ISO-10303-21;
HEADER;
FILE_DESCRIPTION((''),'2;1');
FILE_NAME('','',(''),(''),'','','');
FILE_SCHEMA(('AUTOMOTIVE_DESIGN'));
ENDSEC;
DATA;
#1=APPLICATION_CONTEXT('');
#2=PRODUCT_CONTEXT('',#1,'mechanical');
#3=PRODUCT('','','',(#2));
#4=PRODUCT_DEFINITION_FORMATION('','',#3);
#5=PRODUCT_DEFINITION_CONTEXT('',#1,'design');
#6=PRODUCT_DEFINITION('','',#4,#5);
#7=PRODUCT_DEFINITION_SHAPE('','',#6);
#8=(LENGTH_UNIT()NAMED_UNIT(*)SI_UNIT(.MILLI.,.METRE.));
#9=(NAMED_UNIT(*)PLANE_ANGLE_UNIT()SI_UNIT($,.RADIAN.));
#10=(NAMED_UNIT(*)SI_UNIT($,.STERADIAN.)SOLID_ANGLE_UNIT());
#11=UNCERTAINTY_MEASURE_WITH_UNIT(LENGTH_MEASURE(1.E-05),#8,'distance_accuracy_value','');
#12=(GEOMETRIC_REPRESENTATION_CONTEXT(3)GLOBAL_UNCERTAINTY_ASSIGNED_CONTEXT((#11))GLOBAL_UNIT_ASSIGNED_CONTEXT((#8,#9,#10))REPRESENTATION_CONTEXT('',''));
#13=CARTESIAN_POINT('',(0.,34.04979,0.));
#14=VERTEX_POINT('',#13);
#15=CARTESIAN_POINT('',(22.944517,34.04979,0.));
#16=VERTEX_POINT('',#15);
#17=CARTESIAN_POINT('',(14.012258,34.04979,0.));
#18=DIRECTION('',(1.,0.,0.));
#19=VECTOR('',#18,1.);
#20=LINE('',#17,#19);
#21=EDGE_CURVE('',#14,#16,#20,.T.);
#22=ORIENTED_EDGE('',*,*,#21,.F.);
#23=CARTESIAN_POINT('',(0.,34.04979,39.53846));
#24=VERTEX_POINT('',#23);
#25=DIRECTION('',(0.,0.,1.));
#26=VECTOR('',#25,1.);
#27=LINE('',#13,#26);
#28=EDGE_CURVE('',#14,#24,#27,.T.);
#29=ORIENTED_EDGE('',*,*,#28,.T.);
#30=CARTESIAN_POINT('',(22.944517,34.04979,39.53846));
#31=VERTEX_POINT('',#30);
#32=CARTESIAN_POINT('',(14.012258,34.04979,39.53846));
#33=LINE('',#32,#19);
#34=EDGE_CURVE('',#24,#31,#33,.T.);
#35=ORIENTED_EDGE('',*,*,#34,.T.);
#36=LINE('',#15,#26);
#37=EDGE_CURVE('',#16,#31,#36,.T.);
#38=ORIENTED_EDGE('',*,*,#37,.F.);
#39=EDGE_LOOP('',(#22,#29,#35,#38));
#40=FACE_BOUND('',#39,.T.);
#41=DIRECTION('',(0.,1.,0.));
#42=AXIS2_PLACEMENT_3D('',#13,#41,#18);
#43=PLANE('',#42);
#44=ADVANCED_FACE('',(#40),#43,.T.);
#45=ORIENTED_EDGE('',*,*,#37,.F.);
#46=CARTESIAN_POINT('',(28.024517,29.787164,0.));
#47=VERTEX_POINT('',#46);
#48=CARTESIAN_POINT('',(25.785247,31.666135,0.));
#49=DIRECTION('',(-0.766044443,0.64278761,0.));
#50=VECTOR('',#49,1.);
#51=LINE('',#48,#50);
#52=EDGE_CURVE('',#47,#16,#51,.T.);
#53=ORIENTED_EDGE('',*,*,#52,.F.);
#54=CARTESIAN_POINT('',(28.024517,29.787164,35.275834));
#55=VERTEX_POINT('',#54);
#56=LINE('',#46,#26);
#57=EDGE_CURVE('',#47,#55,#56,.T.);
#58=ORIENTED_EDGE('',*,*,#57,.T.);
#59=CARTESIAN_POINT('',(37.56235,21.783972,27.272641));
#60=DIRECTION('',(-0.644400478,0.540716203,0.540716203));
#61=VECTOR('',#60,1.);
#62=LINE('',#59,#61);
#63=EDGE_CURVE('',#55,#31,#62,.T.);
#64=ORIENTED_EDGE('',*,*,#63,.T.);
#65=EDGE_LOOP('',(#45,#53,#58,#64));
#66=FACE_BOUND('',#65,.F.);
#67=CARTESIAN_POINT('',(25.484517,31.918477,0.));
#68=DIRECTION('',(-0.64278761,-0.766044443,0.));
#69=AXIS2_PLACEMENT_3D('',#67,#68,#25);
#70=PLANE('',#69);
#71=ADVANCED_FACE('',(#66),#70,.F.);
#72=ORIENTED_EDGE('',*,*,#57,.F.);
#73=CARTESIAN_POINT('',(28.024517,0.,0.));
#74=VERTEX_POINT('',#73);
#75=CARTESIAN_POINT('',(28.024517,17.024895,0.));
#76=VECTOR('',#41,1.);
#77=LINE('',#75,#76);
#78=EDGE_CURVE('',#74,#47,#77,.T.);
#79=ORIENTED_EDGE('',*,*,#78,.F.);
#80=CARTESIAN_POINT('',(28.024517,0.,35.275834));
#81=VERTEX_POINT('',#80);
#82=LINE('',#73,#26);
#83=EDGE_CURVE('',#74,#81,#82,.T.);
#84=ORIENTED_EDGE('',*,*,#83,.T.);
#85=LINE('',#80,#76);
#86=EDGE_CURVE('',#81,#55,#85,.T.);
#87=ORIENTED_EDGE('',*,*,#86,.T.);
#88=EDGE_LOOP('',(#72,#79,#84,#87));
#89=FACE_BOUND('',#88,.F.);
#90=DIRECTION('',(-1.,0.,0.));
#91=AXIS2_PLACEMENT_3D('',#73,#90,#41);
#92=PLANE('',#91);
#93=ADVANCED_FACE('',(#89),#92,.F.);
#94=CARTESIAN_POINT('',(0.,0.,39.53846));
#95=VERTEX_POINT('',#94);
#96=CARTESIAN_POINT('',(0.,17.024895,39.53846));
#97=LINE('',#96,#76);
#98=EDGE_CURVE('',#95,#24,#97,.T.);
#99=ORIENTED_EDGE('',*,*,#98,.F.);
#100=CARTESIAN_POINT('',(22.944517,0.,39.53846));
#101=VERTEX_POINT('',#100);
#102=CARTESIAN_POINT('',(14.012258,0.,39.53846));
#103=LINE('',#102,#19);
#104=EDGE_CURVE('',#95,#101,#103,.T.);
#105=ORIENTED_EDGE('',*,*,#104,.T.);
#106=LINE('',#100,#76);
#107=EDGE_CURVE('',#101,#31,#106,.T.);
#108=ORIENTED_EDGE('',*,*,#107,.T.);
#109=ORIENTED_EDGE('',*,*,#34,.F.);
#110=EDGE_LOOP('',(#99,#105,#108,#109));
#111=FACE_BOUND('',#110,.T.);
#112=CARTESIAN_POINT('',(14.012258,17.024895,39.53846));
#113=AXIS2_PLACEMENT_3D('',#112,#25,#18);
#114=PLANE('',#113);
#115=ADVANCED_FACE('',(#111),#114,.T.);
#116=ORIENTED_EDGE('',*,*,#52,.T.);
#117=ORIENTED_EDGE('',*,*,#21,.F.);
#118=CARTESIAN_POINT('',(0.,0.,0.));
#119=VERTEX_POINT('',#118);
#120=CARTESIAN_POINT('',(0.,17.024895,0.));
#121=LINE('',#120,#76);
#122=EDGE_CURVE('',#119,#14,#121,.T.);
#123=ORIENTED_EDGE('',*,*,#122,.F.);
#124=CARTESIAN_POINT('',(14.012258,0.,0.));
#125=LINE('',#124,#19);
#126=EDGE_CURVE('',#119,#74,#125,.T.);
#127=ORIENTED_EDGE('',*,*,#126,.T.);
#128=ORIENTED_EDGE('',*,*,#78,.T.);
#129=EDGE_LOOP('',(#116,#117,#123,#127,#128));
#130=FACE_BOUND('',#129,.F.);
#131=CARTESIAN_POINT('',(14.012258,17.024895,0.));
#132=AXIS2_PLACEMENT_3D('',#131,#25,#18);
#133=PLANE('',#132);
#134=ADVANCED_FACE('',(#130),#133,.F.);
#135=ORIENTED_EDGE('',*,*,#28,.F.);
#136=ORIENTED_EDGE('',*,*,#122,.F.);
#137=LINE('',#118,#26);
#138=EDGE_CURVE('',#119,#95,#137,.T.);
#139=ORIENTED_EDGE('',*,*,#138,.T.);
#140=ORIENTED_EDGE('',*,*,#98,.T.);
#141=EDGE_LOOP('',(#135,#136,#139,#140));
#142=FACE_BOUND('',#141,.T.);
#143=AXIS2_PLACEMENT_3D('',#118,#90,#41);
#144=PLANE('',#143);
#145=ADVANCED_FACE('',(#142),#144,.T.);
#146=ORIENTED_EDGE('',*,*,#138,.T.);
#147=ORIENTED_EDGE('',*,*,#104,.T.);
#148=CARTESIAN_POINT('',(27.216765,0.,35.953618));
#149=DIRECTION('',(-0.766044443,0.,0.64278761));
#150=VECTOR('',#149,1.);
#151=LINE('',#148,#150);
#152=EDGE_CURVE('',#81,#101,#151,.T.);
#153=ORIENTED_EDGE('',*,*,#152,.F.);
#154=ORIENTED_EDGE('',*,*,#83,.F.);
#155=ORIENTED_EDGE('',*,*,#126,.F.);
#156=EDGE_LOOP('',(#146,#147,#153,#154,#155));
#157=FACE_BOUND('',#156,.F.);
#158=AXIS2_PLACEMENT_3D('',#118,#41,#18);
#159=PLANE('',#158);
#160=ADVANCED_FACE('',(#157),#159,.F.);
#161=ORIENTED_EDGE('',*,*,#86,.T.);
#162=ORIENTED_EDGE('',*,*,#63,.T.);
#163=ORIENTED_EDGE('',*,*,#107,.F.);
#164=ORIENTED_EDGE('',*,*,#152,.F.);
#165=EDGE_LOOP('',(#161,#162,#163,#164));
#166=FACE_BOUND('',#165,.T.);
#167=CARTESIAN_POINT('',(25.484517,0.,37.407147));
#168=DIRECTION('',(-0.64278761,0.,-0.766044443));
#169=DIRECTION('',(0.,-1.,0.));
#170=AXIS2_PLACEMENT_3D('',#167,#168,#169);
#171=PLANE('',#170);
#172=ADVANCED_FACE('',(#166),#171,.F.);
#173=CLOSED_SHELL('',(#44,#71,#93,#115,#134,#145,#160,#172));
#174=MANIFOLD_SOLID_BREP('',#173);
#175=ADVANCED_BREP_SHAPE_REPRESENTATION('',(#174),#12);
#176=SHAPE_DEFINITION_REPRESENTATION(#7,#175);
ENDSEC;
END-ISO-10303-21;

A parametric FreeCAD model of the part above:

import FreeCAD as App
import Part
import Sketcher

V = App.Vector


def edges_at(feature, points):
    """Names of the edges that pass closest to the given points."""
    edges = feature.Shape.Edges
    near = lambda p: min(range(len(edges)), key=lambda i: edges[i].distToShape(Part.Vertex(*p))[0])
    return sorted({f"Edge{near(p) + 1}" for p in points})

doc = App.newDocument("Part")
body = doc.addObject("PartDesign::Body", "Body")

# Sketch on XY plane
sketch1 = body.newObject("Sketcher::SketchObject", "Sketch")
sketch1.AttachmentSupport = (doc.getObject("XY_Plane"), [""])
sketch1.MapMode = "FlatFace"
sketch1.addGeometry([
    Part.LineSegment(V(0, 34, 0), V(0, 0, 0)),
    Part.LineSegment(V(0, 0, 0), V(28, 0, 0)),
    Part.LineSegment(V(28, 0, 0), V(28, 34, 0)),
    Part.LineSegment(V(28, 34, 0), V(0, 34, 0)),
], False)
sketch1.addConstraint([
    Sketcher.Constraint("Coincident", 0, 2, 1, 1),
    Sketcher.Constraint("Coincident", 1, 2, 2, 1),
    Sketcher.Constraint("Coincident", 2, 2, 3, 1),
    Sketcher.Constraint("Coincident", 3, 2, 0, 1),
    Sketcher.Constraint("Vertical", 0),
    Sketcher.Constraint("Horizontal", 1),
    Sketcher.Constraint("Vertical", 2),
    Sketcher.Constraint("Horizontal", 3),
    Sketcher.Constraint("Coincident", 0, 2, -1, 1),
    Sketcher.Constraint("DistanceY", 0, 2, 0, 1, 34.04979),
    Sketcher.Constraint("DistanceX", 1, 1, 1, 2, 28.024517),
])
pad1 = body.newObject("PartDesign::Pad", "Pad")
pad1.Profile = sketch1
pad1.Length = 39.53846
doc.recompute()

chamfer = body.newObject("PartDesign::Chamfer", "Chamfer")
chamfer.Base = (pad1, edges_at(pad1, [(28.025, 34.05, 19.769), (28.025, 17.025, 39.538)]))
chamfer.ChamferType = "Two distances"
chamfer.Size = 4.262626
chamfer.Size2 = 5.08

doc.recompute()
